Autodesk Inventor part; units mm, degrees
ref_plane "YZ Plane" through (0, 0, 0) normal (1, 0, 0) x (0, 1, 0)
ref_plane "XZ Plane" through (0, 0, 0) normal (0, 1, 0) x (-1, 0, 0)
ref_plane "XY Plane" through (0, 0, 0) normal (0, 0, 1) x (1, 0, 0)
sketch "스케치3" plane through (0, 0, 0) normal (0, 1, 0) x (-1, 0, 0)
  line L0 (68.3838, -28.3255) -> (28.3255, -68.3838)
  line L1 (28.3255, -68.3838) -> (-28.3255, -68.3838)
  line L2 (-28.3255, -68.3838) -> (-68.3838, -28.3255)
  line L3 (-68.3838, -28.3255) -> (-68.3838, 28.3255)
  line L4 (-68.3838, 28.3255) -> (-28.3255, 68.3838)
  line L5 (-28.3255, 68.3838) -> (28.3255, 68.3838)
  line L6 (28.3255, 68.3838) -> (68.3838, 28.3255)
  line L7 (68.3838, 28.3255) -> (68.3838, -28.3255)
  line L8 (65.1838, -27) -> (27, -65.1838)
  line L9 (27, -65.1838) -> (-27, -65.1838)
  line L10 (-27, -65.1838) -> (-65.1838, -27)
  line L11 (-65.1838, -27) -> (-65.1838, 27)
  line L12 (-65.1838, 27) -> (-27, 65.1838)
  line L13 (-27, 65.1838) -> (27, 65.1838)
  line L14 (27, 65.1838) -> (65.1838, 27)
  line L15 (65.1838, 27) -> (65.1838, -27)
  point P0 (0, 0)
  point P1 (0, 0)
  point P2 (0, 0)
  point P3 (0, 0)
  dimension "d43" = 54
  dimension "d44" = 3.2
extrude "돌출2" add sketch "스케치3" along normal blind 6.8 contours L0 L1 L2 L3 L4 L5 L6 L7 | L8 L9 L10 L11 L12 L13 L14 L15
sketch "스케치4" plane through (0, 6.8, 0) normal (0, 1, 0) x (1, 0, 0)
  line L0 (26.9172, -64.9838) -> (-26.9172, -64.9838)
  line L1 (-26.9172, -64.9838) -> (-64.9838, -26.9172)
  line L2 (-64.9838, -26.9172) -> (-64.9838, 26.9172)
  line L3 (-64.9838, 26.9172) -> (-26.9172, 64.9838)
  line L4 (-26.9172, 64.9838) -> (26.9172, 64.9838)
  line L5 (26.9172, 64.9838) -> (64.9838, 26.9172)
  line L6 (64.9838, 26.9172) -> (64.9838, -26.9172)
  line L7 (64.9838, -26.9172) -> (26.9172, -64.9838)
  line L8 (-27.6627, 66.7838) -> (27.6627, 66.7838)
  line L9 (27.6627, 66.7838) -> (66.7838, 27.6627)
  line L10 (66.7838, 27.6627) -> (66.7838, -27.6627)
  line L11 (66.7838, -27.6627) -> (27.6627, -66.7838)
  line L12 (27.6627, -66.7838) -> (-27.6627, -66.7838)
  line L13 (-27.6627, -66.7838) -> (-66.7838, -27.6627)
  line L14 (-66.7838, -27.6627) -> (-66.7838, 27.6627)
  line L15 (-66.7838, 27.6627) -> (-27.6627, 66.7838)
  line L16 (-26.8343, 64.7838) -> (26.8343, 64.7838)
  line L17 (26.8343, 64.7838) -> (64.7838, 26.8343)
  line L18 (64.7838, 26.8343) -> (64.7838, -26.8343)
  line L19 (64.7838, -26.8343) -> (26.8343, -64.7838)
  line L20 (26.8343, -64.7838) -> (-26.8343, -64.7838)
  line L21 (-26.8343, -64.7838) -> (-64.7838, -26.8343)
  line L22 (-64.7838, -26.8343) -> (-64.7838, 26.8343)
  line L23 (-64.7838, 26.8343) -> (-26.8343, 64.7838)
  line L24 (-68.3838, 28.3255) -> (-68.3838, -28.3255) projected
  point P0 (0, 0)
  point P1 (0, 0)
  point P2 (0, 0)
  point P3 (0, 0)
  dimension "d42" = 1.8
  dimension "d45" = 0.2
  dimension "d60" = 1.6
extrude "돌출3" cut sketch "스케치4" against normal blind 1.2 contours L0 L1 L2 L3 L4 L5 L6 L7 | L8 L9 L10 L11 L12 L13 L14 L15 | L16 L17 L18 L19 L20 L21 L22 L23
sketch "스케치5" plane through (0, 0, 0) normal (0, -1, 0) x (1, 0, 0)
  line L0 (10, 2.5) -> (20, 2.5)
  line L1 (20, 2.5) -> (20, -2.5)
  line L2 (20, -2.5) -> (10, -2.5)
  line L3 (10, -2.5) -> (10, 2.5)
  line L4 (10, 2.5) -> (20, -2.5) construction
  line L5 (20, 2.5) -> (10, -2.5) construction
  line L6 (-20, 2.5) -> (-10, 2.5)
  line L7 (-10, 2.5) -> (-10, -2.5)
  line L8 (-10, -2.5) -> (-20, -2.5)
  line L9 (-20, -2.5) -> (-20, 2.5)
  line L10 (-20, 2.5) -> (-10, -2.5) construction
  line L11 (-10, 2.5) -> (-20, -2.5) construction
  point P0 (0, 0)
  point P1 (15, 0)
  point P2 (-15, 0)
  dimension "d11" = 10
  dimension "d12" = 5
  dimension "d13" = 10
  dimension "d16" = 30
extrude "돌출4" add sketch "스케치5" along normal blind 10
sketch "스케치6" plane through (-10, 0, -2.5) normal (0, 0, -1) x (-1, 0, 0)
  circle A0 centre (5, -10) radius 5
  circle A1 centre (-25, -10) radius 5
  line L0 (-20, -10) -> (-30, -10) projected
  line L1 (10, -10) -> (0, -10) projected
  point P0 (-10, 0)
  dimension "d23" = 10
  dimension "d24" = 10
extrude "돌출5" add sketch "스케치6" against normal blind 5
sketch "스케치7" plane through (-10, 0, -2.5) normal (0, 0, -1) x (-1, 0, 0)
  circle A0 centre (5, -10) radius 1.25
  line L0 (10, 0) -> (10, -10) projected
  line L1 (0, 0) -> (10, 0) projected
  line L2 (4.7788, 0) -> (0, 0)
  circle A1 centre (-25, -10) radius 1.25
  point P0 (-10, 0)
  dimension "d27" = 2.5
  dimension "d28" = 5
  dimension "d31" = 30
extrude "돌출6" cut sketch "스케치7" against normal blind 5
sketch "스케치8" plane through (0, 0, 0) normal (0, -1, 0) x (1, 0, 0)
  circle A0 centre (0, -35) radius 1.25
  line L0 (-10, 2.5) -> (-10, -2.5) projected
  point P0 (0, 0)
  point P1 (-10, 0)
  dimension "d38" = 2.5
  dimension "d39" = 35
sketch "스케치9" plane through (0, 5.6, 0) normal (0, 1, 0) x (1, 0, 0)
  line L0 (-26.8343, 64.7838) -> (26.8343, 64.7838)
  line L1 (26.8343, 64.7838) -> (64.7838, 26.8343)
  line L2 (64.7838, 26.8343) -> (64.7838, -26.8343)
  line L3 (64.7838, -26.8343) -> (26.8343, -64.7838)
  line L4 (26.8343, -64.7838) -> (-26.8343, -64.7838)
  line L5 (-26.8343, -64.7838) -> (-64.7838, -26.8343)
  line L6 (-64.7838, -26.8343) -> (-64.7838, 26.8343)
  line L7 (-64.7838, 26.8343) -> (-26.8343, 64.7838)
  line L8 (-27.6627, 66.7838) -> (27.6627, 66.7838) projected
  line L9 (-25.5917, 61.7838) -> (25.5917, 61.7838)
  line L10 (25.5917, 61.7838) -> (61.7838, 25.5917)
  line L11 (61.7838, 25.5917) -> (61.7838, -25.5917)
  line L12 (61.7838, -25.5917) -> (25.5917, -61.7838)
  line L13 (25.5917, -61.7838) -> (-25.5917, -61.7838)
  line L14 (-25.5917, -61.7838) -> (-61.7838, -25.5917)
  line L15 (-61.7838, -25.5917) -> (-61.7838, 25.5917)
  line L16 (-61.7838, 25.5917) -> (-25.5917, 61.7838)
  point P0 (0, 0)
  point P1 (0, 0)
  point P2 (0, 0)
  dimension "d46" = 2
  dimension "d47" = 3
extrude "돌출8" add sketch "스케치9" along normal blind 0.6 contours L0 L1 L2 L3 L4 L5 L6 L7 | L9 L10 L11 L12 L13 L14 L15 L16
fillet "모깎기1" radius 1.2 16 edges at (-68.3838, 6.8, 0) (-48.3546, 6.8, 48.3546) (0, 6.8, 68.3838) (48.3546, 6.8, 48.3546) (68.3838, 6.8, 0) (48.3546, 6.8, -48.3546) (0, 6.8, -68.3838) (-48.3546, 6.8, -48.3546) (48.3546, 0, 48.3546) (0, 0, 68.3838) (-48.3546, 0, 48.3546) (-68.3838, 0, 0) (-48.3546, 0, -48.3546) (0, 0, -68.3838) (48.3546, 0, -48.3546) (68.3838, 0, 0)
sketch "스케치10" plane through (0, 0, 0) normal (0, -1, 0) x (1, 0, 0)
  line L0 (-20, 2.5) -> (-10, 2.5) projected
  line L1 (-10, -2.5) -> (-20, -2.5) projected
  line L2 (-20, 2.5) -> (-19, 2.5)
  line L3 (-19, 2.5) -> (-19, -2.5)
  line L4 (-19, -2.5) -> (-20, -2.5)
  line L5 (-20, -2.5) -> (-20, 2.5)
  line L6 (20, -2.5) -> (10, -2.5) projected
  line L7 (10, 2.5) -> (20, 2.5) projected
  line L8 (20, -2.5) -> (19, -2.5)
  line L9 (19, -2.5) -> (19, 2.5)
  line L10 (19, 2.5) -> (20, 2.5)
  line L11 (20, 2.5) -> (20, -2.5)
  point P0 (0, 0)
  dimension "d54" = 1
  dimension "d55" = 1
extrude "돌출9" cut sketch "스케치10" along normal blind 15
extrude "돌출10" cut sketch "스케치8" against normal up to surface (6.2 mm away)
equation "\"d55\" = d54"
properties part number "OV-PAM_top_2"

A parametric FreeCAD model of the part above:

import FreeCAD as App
import Part
import Sketcher
from FreeCAD import Vector


def edges_at(feature, points):
    """Names of the edges that pass closest to the given points."""
    edges = feature.Shape.Edges
    near = lambda p: min(range(len(edges)), key=lambda i: edges[i].distToShape(Part.Vertex(*p))[0])
    return sorted({f"Edge{near(p) + 1}" for p in points})

doc = App.newDocument("Part")
body = doc.addObject("PartDesign::Body", "Body")

sketch1 = body.newObject("Sketcher::SketchObject", "Sketch")
sketch1.AttachmentSupport = (doc.getObject("XZ_Plane"), [""])
sketch1.MapMode = "FlatFace"
sketch1.addGeometry(Part.LineSegment(Vector(-28, -68, 0), Vector(-68, -28, 0)), False)
sketch1.addGeometry(Part.LineSegment(Vector(-68, -28, 0), Vector(-68, 28, 0)), False)
sketch1.addGeometry(Part.LineSegment(Vector(-68, 28, 0), Vector(-28, 68, 0)), False)
sketch1.addGeometry(Part.LineSegment(Vector(-28, 68, 0), Vector(28, 68, 0)), False)
sketch1.addGeometry(Part.LineSegment(Vector(28, 68, 0), Vector(68, 28, 0)), False)
sketch1.addGeometry(Part.LineSegment(Vector(68, 28, 0), Vector(68, -28, 0)), False)
sketch1.addGeometry(Part.LineSegment(Vector(68, -28, 0), Vector(28, -68, 0)), False)
sketch1.addGeometry(Part.LineSegment(Vector(28, -68, 0), Vector(-28, -68, 0)), False)
sketch1.addConstraint(Sketcher.Constraint("Coincident", 0, 2, 1, 1))
sketch1.addConstraint(Sketcher.Constraint("Coincident", 1, 2, 2, 1))
sketch1.addConstraint(Sketcher.Constraint("Coincident", 2, 2, 3, 1))
sketch1.addConstraint(Sketcher.Constraint("Coincident", 3, 2, 4, 1))
sketch1.addConstraint(Sketcher.Constraint("Coincident", 4, 2, 5, 1))
sketch1.addConstraint(Sketcher.Constraint("Coincident", 5, 2, 6, 1))
sketch1.addConstraint(Sketcher.Constraint("Coincident", 6, 2, 7, 1))
sketch1.addConstraint(Sketcher.Constraint("Coincident", 7, 2, 0, 1))
sketch1.addConstraint(Sketcher.Constraint("Vertical", 1))
sketch1.addConstraint(Sketcher.Constraint("Horizontal", 3))
sketch1.addConstraint(Sketcher.Constraint("Vertical", 5))
sketch1.addConstraint(Sketcher.Constraint("Horizontal", 7))
sketch1.addConstraint(Sketcher.Constraint("Symmetric", 0, 2, 4, 2, -1, 1))
sketch1.addConstraint(Sketcher.Constraint("Symmetric", 2, 2, 6, 2, -1, 1))
sketch1.addConstraint(Sketcher.Constraint("Perpendicular", 0, 2))
sketch1.addConstraint(Sketcher.Constraint("Perpendicular", 2, 4))
sketch1.addConstraint(Sketcher.Constraint("Perpendicular", 4, 6))
sketch1.addConstraint(Sketcher.Constraint("Horizontal", 1, 2, 4, 2))
sketch1.addConstraint(Sketcher.Constraint("Vertical", 3, 2, 6, 2))
sketch1.addConstraint(Sketcher.Constraint("Equal", 7, 1))
sketch1.addConstraint(Sketcher.Constraint("DistanceX", 3, 1, 3, 2, 56.651))
sketch1.addConstraint(Sketcher.Constraint("Distance", 0, 56.651))
pad1 = body.newObject("PartDesign::Pad", "Pad")
pad1.Profile = sketch1
pad1.Length = 6.8
pad1.Reversed = True

sketch2 = body.newObject("Sketcher::SketchObject", "Sketch001")
sketch2.AttachmentSupport = (doc.getObject("XZ_Plane"), [""])
sketch2.MapMode = "FlatFace"
sketch2.AttachmentOffset = App.Placement(Vector(0, 0, -6.8), App.Rotation())
sketch2.addGeometry(Part.LineSegment(Vector(28, -67, 0), Vector(-28, -67, 0)), False)
sketch2.addGeometry(Part.LineSegment(Vector(-28, -67, 0), Vector(-67, -28, 0)), False)
sketch2.addGeometry(Part.LineSegment(Vector(-67, -28, 0), Vector(-67, 28, 0)), False)
sketch2.addGeometry(Part.LineSegment(Vector(-67, 28, 0), Vector(-28, 67, 0)), False)
sketch2.addGeometry(Part.LineSegment(Vector(-28, 67, 0), Vector(28, 67, 0)), False)
sketch2.addGeometry(Part.LineSegment(Vector(28, 67, 0), Vector(67, 28, 0)), False)
sketch2.addGeometry(Part.LineSegment(Vector(67, 28, 0), Vector(67, -28, 0)), False)
sketch2.addGeometry(Part.LineSegment(Vector(67, -28, 0), Vector(28, -67, 0)), False)
sketch2.addConstraint(Sketcher.Constraint("Coincident", 0, 2, 1, 1))
sketch2.addConstraint(Sketcher.Constraint("Coincident", 1, 2, 2, 1))
sketch2.addConstraint(Sketcher.Constraint("Coincident", 2, 2, 3, 1))
sketch2.addConstraint(Sketcher.Constraint("Coincident", 3, 2, 4, 1))
sketch2.addConstraint(Sketcher.Constraint("Coincident", 4, 2, 5, 1))
sketch2.addConstraint(Sketcher.Constraint("Coincident", 5, 2, 6, 1))
sketch2.addConstraint(Sketcher.Constraint("Coincident", 6, 2, 7, 1))
sketch2.addConstraint(Sketcher.Constraint("Coincident", 7, 2, 0, 1))
sketch2.addConstraint(Sketcher.Constraint("Horizontal", 0))
sketch2.addConstraint(Sketcher.Constraint("Vertical", 2))
sketch2.addConstraint(Sketcher.Constraint("Horizontal", 4))
sketch2.addConstraint(Sketcher.Constraint("Vertical", 6))
sketch2.addConstraint(Sketcher.Constraint("Symmetric", 0, 2, 4, 2, -1, 1))
sketch2.addConstraint(Sketcher.Constraint("Symmetric", 1, 2, 5, 2, -1, 1))
sketch2.addConstraint(Sketcher.Constraint("Perpendicular", 1, 3))
sketch2.addConstraint(Sketcher.Constraint("Perpendicular", 5, 7))
sketch2.addConstraint(Sketcher.Constraint("Horizontal", 2, 2, 5, 2))
sketch2.addConstraint(Sketcher.Constraint("Horizontal", 1, 2, 6, 2))
sketch2.addConstraint(Sketcher.Constraint("Vertical", 0, 2, 3, 2))
sketch2.addConstraint(Sketcher.Constraint("Equal", 4, 2))
sketch2.addConstraint(Sketcher.Constraint("DistanceX", 0, 2, 0, 1, 55.3254))
sketch2.addConstraint(Sketcher.Constraint("DistanceX", 1, 2, 0, 2, 39.121))
pocket1 = body.newObject("PartDesign::Pocket", "Pocket")
pocket1.Profile = sketch2
pocket1.Length = 1.2
pocket1.Reversed = True

sketch3 = body.newObject("Sketcher::SketchObject", "Sketch002")
sketch3.AttachmentSupport = (doc.getObject("XZ_Plane"), [""])
sketch3.MapMode = "FlatFace"
sketch3.addGeometry(Part.LineSegment(Vector(20, 2, 0), Vector(10, 2, 0)), False)
sketch3.addGeometry(Part.LineSegment(Vector(10, 2, 0), Vector(10, -2, 0)), False)
sketch3.addGeometry(Part.LineSegment(Vector(10, -2, 0), Vector(20, -2, 0)), False)
sketch3.addGeometry(Part.LineSegment(Vector(20, -2, 0), Vector(20, 2, 0)), False)
sketch3.addGeometry(Part.LineSegment(Vector(-10, 2, 0), Vector(-20, 2, 0)), False)
sketch3.addGeometry(Part.LineSegment(Vector(-20, 2, 0), Vector(-20, -2, 0)), False)
sketch3.addGeometry(Part.LineSegment(Vector(-20, -2, 0), Vector(-10, -2, 0)), False)
sketch3.addGeometry(Part.LineSegment(Vector(-10, -2, 0), Vector(-10, 2, 0)), False)
sketch3.addConstraint(Sketcher.Constraint("Coincident", 0, 2, 1, 1))
sketch3.addConstraint(Sketcher.Constraint("Coincident", 1, 2, 2, 1))
sketch3.addConstraint(Sketcher.Constraint("Coincident", 2, 2, 3, 1))
sketch3.addConstraint(Sketcher.Constraint("Coincident", 3, 2, 0, 1))
sketch3.addConstraint(Sketcher.Constraint("Coincident", 4, 2, 5, 1))
sketch3.addConstraint(Sketcher.Constraint("Coincident", 5, 2, 6, 1))
sketch3.addConstraint(Sketcher.Constraint("Coincident", 6, 2, 7, 1))
sketch3.addConstraint(Sketcher.Constraint("Coincident", 7, 2, 4, 1))
sketch3.addConstraint(Sketcher.Constraint("Horizontal", 0))
sketch3.addConstraint(Sketcher.Constraint("Vertical", 1))
sketch3.addConstraint(Sketcher.Constraint("Horizontal", 2))
sketch3.addConstraint(Sketcher.Constraint("Vertical", 3))
sketch3.addConstraint(Sketcher.Constraint("Horizontal", 4))
sketch3.addConstraint(Sketcher.Constraint("Vertical", 5))
sketch3.addConstraint(Sketcher.Constraint("Horizontal", 6))
sketch3.addConstraint(Sketcher.Constraint("Vertical", 7))
sketch3.addConstraint(Sketcher.Constraint("Symmetric", 2, 2, 4, 2, -1, 1))
sketch3.addConstraint(Sketcher.Constraint("Symmetric", 0, 2, 6, 2, -1, 1))
sketch3.addConstraint(Sketcher.Constraint("Horizontal", 3, 2, 4, 2))
sketch3.addConstraint(Sketcher.Constraint("DistanceX", 0, 2, 0, 1, 10.0))
sketch3.addConstraint(Sketcher.Constraint("DistanceY", 1, 2, 1, 1, 5.0))
sketch3.addConstraint(Sketcher.Constraint("DistanceX", -1, 1, 0, 2, 10.0))
pad2 = body.newObject("PartDesign::Pad", "Pad001")
pad2.Profile = sketch3
pad2.Length = 10

sketch4 = body.newObject("Sketcher::SketchObject", "Sketch003")
sketch4.AttachmentSupport = (doc.getObject("XY_Plane"), [""])
sketch4.MapMode = "FlatFace"
sketch4.AttachmentOffset = App.Placement(Vector(0, 0, -2.5), App.Rotation())
sketch4.addGeometry(Part.Circle(Vector(-15, -10, 0), Vector(0, 0, 1), 5), False)
sketch4.addGeometry(Part.Circle(Vector(15, -10, 0), Vector(0, 0, 1), 5), False)
sketch4.addConstraint(Sketcher.Constraint("Equal", 0, 1))
sketch4.addConstraint(Sketcher.Constraint("Symmetric", 0, 3, 1, 3, -2))
sketch4.addConstraint(Sketcher.Constraint("Diameter", 0, 10.0))
sketch4.addConstraint(Sketcher.Constraint("DistanceY", 0, 3, -1, 1, 10.0))
sketch4.addConstraint(Sketcher.Constraint("DistanceX", 0, 3, -1, 1, 15.0))
pad3 = body.newObject("PartDesign::Pad", "Pad002")
pad3.Profile = sketch4
pad3.Length = 5

sketch5 = body.newObject("Sketcher::SketchObject", "Sketch004")
sketch5.AttachmentSupport = (doc.getObject("XY_Plane"), [""])
sketch5.MapMode = "FlatFace"
sketch5.AttachmentOffset = App.Placement(Vector(0, 0, -2.5), App.Rotation())
sketch5.addGeometry(Part.Circle(Vector(-15, -10, 0), Vector(0, 0, 1), 1.2), False)
sketch5.addGeometry(Part.Circle(Vector(15, -10, 0), Vector(0, 0, 1), 1.2), False)
sketch5.addConstraint(Sketcher.Constraint("Equal", 0, 1))
sketch5.addConstraint(Sketcher.Constraint("Symmetric", 0, 3, 1, 3, -2))
sketch5.addConstraint(Sketcher.Constraint("Diameter", 0, 2.5))
sketch5.addConstraint(Sketcher.Constraint("DistanceY", 0, 3, -1, 1, 10.0))
sketch5.addConstraint(Sketcher.Constraint("DistanceX", 0, 3, 1, 3, 30.0))
pocket2 = body.newObject("PartDesign::Pocket", "Pocket001")
pocket2.Profile = sketch5
pocket2.Length = 5
pocket2.Reversed = True

sketch6 = body.newObject("Sketcher::SketchObject", "Sketch005")
sketch6.AttachmentSupport = (doc.getObject("XZ_Plane"), [""])
sketch6.MapMode = "FlatFace"
sketch6.AttachmentOffset = App.Placement(Vector(0, 0, -5.6), App.Rotation())
sketch6.addGeometry(Part.LineSegment(Vector(27, -65, 0), Vector(-27, -65, 0)), False)
sketch6.addGeometry(Part.LineSegment(Vector(-27, -65, 0), Vector(-65, -27, 0)), False)
sketch6.addGeometry(Part.LineSegment(Vector(-65, -27, 0), Vector(-65, 27, 0)), False)
sketch6.addGeometry(Part.LineSegment(Vector(-65, 27, 0), Vector(-27, 65, 0)), False)
sketch6.addGeometry(Part.LineSegment(Vector(-27, 65, 0), Vector(27, 65, 0)), False)
sketch6.addGeometry(Part.LineSegment(Vector(27, 65, 0), Vector(65, 27, 0)), False)
sketch6.addGeometry(Part.LineSegment(Vector(65, 27, 0), Vector(65, -27, 0)), False)
sketch6.addGeometry(Part.LineSegment(Vector(65, -27, 0), Vector(27, -65, 0)), False)
sketch6.addConstraint(Sketcher.Constraint("Coincident", 0, 2, 1, 1))
sketch6.addConstraint(Sketcher.Constraint("Coincident", 1, 2, 2, 1))
sketch6.addConstraint(Sketcher.Constraint("Coincident", 2, 2, 3, 1))
sketch6.addConstraint(Sketcher.Constraint("Coincident", 3, 2, 4, 1))
sketch6.addConstraint(Sketcher.Constraint("Coincident", 4, 2, 5, 1))
sketch6.addConstraint(Sketcher.Constraint("Coincident", 5, 2, 6, 1))
sketch6.addConstraint(Sketcher.Constraint("Coincident", 6, 2, 7, 1))
sketch6.addConstraint(Sketcher.Constraint("Coincident", 7, 2, 0, 1))
sketch6.addConstraint(Sketcher.Constraint("Horizontal", 0))
sketch6.addConstraint(Sketcher.Constraint("Vertical", 2))
sketch6.addConstraint(Sketcher.Constraint("Horizontal", 4))
sketch6.addConstraint(Sketcher.Constraint("Vertical", 6))
sketch6.addConstraint(Sketcher.Constraint("Symmetric", 0, 2, 4, 2, -1, 1))
sketch6.addConstraint(Sketcher.Constraint("Symmetric", 1, 2, 5, 2, -1, 1))
sketch6.addConstraint(Sketcher.Constraint("Perpendicular", 1, 3))
sketch6.addConstraint(Sketcher.Constraint("Perpendicular", 5, 7))
sketch6.addConstraint(Sketcher.Constraint("Horizontal", 2, 2, 5, 2))
sketch6.addConstraint(Sketcher.Constraint("Horizontal", 1, 2, 6, 2))
sketch6.addConstraint(Sketcher.Constraint("Vertical", 0, 2, 3, 2))
sketch6.addConstraint(Sketcher.Constraint("Equal", 4, 2))
sketch6.addConstraint(Sketcher.Constraint("DistanceX", 0, 2, 0, 1, 53.6686))
sketch6.addConstraint(Sketcher.Constraint("DistanceY", 0, 2, 2, 2, 91.618))
pad4 = body.newObject("PartDesign::Pad", "Pad003")
pad4.Profile = sketch6
pad4.Length = 0.6
pad4.Reversed = True
doc.recompute()

fillet = body.newObject("PartDesign::Fillet", "Fillet")
fillet.Base = (pad4, edges_at(pad4, [
    (-68.384, 6.8, 0),
    (-48.355, 6.8, 48.355),
    (0, 6.8, 68.384),
    (48.355, 6.8, 48.355),
    (68.384, 6.8, 0),
    (48.355, 6.8, -48.355),
    (0, 6.8, -68.384),
    (-48.355, 6.8, -48.355),
    (48.355, 0, 48.355),
    (0, 0, 68.384),
    (-48.355, 0, 48.355),
    (-68.384, 0, 0),
    (-48.355, 0, -48.355),
    (0, 0, -68.384),
    (48.355, 0, -48.355),
    (68.384, 0, 0),
]))
fillet.Radius = 1.2

sketch7 = body.newObject("Sketcher::SketchObject", "Sketch006")
sketch7.AttachmentSupport = (doc.getObject("XZ_Plane"), [""])
sketch7.MapMode = "FlatFace"
sketch7.addGeometry(Part.LineSegment(Vector(-19, 2.5, 0), Vector(-20, 2.5, 0)), False)
sketch7.addGeometry(Part.LineSegment(Vector(-20, 2.5, 0), Vector(-20, -2.5, 0)), False)
sketch7.addGeometry(Part.LineSegment(Vector(-20, -2.5, 0), Vector(-19, -2.5, 0)), False)
sketch7.addGeometry(Part.LineSegment(Vector(-19, -2.5, 0), Vector(-19, 2.5, 0)), False)
sketch7.addGeometry(Part.LineSegment(Vector(19, -2.5, 0), Vector(20, -2.5, 0)), False)
sketch7.addGeometry(Part.LineSegment(Vector(20, -2.5, 0), Vector(20, 2.5, 0)), False)
sketch7.addGeometry(Part.LineSegment(Vector(20, 2.5, 0), Vector(19, 2.5, 0)), False)
sketch7.addGeometry(Part.LineSegment(Vector(19, 2.5, 0), Vector(19, -2.5, 0)), False)
sketch7.addConstraint(Sketcher.Constraint("Coincident", 0, 2, 1, 1))
sketch7.addConstraint(Sketcher.Constraint("Coincident", 1, 2, 2, 1))
sketch7.addConstraint(Sketcher.Constraint("Coincident", 2, 2, 3, 1))
sketch7.addConstraint(Sketcher.Constraint("Coincident", 3, 2, 0, 1))
sketch7.addConstraint(Sketcher.Constraint("Coincident", 4, 2, 5, 1))
sketch7.addConstraint(Sketcher.Constraint("Coincident", 5, 2, 6, 1))
sketch7.addConstraint(Sketcher.Constraint("Coincident", 6, 2, 7, 1))
sketch7.addConstraint(Sketcher.Constraint("Coincident", 7, 2, 4, 1))
sketch7.addConstraint(Sketcher.Constraint("Horizontal", 0))
sketch7.addConstraint(Sketcher.Constraint("Vertical", 1))
sketch7.addConstraint(Sketcher.Constraint("Horizontal", 2))
sketch7.addConstraint(Sketcher.Constraint("Vertical", 3))
sketch7.addConstraint(Sketcher.Constraint("Horizontal", 4))
sketch7.addConstraint(Sketcher.Constraint("Vertical", 5))
sketch7.addConstraint(Sketcher.Constraint("Horizontal", 6))
sketch7.addConstraint(Sketcher.Constraint("Vertical", 7))
sketch7.addConstraint(Sketcher.Constraint("Symmetric", 0, 2, 4, 2, -1, 1))
sketch7.addConstraint(Sketcher.Constraint("Symmetric", 2, 2, 6, 2, -1, 1))
sketch7.addConstraint(Sketcher.Constraint("Horizontal", 2, 2, 4, 2))
sketch7.addConstraint(Sketcher.Constraint("DistanceX", 0, 2, 0, 1, 1.0))
sketch7.addConstraint(Sketcher.Constraint("DistanceY", 1, 2, 1, 1, 5.0))
sketch7.addConstraint(Sketcher.Constraint("DistanceX", 0, 2, -1, 1, 20.0))
pocket3 = body.newObject("PartDesign::Pocket", "Pocket002")
pocket3.Profile = sketch7
pocket3.Length = 15
pocket3.Reversed = True

sketch8 = body.newObject("Sketcher::SketchObject", "Sketch007")
sketch8.AttachmentSupport = (doc.getObject("XZ_Plane"), [""])
sketch8.MapMode = "FlatFace"
sketch8.addGeometry(Part.Circle(Vector(0, -35, 0), Vector(0, 0, 1), 1.2), False)
sketch8.addConstraint(Sketcher.Constraint("PointOnObject", 0, 3, -2))
sketch8.addConstraint(Sketcher.Constraint("Diameter", 0, 2.5))
sketch8.addConstraint(Sketcher.Constraint("DistanceY", 0, 3, -1, 1, 35.0))
pocket4 = body.newObject("PartDesign::Pocket", "Pocket003")
pocket4.Profile = sketch8
pocket4.Length = 6.2

doc.recompute()
